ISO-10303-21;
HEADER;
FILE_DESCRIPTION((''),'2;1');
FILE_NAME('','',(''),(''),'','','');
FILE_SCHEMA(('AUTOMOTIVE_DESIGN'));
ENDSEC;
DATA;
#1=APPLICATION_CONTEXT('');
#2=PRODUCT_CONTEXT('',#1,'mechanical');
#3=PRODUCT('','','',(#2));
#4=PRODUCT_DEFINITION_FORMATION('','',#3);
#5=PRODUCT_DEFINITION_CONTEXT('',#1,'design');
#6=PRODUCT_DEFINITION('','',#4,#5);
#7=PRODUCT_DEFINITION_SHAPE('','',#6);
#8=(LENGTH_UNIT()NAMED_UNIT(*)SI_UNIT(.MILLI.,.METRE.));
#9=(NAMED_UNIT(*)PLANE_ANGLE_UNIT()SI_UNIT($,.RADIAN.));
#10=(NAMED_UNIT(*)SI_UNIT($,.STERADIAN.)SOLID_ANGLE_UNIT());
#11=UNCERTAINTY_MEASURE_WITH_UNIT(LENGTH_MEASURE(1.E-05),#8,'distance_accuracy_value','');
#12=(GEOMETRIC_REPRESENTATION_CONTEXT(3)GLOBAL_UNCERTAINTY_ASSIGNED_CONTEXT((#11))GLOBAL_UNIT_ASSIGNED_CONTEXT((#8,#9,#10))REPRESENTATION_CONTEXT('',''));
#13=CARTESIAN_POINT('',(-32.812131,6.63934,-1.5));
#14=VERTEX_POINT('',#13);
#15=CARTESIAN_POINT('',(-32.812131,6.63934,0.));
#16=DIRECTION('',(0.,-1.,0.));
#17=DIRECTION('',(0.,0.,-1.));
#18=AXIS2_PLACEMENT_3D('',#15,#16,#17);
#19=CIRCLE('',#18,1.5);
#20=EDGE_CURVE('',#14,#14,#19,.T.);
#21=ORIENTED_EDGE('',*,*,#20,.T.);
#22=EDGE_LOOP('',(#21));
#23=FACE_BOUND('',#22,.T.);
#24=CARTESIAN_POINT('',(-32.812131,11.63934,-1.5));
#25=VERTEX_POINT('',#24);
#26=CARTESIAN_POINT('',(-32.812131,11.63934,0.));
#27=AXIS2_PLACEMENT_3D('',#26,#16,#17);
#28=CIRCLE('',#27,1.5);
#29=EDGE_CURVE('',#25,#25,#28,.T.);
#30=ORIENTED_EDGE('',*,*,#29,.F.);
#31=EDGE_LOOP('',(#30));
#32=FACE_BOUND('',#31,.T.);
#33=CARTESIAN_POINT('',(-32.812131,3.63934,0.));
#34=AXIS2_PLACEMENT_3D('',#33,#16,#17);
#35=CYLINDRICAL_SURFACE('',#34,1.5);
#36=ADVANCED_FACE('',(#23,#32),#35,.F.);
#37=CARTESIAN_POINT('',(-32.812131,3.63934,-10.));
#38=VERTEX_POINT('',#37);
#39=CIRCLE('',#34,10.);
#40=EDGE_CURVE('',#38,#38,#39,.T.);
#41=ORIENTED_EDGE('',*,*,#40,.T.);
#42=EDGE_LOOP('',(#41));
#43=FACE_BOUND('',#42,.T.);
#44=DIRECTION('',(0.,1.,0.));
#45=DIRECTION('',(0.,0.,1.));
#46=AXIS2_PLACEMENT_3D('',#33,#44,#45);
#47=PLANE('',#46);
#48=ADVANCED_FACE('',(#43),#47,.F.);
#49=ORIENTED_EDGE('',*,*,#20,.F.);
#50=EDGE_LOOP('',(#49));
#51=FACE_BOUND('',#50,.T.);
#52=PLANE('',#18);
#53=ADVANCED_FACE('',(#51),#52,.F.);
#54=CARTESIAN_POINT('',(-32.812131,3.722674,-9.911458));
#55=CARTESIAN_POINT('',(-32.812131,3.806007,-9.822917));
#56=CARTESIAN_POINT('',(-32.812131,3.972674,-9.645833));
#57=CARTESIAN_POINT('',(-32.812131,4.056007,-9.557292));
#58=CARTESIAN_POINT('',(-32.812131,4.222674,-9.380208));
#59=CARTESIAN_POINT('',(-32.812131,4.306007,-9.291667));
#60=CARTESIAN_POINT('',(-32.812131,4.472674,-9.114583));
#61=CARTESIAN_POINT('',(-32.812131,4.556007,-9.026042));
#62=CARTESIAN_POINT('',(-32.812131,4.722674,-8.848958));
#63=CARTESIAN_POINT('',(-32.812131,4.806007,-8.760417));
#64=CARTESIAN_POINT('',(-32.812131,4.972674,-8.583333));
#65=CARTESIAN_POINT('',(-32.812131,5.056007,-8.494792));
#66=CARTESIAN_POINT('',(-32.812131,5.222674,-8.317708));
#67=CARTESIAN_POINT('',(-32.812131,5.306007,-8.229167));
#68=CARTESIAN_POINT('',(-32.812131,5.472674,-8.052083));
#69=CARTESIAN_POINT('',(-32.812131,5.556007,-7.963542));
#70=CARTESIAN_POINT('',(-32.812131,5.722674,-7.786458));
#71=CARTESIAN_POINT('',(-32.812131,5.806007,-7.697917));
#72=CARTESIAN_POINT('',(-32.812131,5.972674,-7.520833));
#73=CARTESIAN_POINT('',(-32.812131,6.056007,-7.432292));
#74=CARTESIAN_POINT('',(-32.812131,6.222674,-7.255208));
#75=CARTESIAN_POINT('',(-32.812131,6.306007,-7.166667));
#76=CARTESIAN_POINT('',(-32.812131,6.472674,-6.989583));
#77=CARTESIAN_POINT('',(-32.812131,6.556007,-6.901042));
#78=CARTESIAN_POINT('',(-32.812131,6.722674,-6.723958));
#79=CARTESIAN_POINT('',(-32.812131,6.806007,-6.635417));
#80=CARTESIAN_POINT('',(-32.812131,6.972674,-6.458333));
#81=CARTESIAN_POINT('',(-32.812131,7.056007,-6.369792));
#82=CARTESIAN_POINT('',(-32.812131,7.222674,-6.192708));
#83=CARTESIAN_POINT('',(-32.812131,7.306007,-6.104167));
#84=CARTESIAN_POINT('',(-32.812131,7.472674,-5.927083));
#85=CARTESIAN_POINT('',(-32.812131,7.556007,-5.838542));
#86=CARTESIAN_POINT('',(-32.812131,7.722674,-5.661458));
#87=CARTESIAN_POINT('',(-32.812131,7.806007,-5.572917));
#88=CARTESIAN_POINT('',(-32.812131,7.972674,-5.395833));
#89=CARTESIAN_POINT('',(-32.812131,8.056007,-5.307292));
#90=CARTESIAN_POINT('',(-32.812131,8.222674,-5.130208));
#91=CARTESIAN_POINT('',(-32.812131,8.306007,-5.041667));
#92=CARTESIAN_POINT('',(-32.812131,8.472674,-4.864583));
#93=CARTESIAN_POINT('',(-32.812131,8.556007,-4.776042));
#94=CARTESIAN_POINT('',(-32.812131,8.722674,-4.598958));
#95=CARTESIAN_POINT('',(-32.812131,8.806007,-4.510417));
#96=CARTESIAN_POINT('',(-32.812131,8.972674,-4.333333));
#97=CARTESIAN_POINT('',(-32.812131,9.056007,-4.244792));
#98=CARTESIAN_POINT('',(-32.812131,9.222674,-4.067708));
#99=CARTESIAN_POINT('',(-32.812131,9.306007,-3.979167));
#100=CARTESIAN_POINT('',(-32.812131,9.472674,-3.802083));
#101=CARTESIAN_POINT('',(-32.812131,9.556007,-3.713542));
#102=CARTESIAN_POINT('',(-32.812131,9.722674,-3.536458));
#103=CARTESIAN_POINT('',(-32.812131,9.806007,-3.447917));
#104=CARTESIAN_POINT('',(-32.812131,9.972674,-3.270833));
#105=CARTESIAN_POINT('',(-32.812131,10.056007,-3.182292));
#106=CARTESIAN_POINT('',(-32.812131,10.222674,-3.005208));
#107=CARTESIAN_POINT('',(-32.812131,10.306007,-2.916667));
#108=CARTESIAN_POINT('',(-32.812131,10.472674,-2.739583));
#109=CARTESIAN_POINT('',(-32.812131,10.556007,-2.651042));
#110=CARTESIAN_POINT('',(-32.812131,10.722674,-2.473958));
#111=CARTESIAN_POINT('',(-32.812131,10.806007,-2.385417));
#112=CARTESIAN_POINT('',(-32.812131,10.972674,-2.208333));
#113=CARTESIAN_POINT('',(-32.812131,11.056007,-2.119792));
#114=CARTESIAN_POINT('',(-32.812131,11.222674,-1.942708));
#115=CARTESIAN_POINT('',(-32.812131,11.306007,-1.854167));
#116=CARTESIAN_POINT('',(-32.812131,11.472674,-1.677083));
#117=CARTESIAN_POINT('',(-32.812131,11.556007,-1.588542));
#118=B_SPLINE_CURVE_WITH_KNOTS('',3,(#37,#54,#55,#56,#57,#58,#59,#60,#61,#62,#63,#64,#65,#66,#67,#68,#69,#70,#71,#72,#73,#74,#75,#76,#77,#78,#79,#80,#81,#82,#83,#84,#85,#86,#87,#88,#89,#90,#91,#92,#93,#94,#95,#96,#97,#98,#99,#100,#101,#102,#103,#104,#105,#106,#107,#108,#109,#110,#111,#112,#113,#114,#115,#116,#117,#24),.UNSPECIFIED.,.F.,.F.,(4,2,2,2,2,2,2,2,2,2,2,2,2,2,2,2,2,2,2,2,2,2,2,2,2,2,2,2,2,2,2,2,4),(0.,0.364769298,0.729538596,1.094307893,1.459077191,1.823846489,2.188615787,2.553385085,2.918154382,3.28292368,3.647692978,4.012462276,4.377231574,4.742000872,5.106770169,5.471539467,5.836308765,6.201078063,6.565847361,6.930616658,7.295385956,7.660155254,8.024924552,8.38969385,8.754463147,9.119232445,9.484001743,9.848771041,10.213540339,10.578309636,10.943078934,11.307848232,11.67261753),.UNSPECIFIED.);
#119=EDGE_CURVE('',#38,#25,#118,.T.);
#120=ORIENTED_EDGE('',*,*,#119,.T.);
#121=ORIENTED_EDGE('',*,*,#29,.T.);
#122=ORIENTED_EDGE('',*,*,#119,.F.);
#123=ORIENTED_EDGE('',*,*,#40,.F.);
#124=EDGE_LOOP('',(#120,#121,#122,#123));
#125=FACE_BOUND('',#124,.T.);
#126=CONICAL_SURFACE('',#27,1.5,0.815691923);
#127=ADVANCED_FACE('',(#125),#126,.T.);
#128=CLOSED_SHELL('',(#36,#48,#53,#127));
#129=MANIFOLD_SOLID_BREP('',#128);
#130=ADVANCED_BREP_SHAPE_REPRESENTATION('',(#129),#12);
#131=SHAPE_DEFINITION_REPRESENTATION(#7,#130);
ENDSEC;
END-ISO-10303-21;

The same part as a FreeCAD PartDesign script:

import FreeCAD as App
import Part
import Sketcher

V = App.Vector
Q = App.Units.Quantity


def add_polygon(sketch, points):
    """Adds a closed chain of lines whose ends are joined by coincident constraints."""
    first, n = sketch.GeometryCount, len(points)
    for a, b in zip(points, points[1:] + points[:1]):
        sketch.addGeometry(Part.LineSegment(App.Vector(*a, 0), App.Vector(*b, 0)), False)
    for i in range(n):
        sketch.addConstraint(Sketcher.Constraint("Coincident", first + i, 2, first + (i + 1) % n, 1))

doc = App.newDocument("Part")
body = doc.addObject("PartDesign::Body", "Body")

sketch1 = body.newObject("Sketcher::SketchObject", "Sketch")
sketch1.AttachmentSupport = (doc.getObject("XY_Plane"), [""])
sketch1.MapMode = "FlatFace"
add_polygon(sketch1, [(-42.812131, 3.63934), (-32.812131, 3.63934), (-32.812131, 6.63934), (-34.312131, 6.63934), (-34.312131, 11.63934)])
sketch1.addGeometry(Part.LineSegment(V(-32.812131, 3.63934, 0), V(-32.812131, 11.63934, 0)), True)
sketch1.addConstraint([
    Sketcher.Constraint("Horizontal", 0),
    Sketcher.Constraint("Vertical", 1),
    Sketcher.Constraint("Horizontal", 2),
    Sketcher.Constraint("Vertical", 3),
    Sketcher.Constraint("Vertical", 5),
    Sketcher.Constraint("Coincident", 5, 1, 0, 2),
    Sketcher.Constraint("Horizontal", 3, 2, 5, 2),
    Sketcher.Constraint("DistanceX", 0, 1, 0, 2, Q("10 mm")),
    Sketcher.Constraint("DistanceY", 1, 1, 1, 2, Q("3 mm")),
    Sketcher.Constraint("DistanceY", 3, 1, 3, 2, Q("5 mm")),
    Sketcher.Constraint("DistanceX", 2, 2, 2, 1, Q("1.5 mm")),
    Sketcher.Constraint("DistanceX", 0, 2, -1, 1, Q("32.812131 mm")),
    Sketcher.Constraint("DistanceY", -1, 1, 0, 2, Q("3.63934 mm")),
])
revolution = body.newObject("PartDesign::Revolution", "Revolution")
revolution.Profile = sketch1
revolution.ReferenceAxis = (sketch1, ["Axis0"])
revolution.Angle = 360

doc.recompute()
